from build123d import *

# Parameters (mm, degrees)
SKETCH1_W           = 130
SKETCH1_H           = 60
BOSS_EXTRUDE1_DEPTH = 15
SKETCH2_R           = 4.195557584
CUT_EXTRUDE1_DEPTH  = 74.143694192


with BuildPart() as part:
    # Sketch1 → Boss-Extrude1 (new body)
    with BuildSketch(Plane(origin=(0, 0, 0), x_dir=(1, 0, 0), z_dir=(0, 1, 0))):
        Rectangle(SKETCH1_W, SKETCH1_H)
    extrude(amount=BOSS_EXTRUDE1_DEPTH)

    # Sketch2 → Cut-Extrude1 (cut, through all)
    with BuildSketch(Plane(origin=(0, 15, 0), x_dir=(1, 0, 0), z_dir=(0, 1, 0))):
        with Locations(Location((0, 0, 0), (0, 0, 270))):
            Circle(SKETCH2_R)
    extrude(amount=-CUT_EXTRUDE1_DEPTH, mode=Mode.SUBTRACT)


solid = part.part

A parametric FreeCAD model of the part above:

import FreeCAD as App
import Part
import Sketcher
from FreeCAD import Vector
Q = App.Units.Quantity

doc = App.newDocument("Part")
params = doc.addObject("Spreadsheet::Sheet", "Params")
for row, (alias, value) in enumerate([
    ("sketch1_width", "130 mm"),
    ("sketch1_height", "60 mm"),
    ("pad1_length", "15 mm"),
], start=1):
    params.set(f"A{row}", alias)
    params.set(f"B{row}", "=" + value)
    params.setAlias(f"B{row}", alias)

body = doc.addObject("PartDesign::Body", "Body")

# Sketch on XZ plane
sketch1 = body.newObject("Sketcher::SketchObject", "Sketch")
sketch1.AttachmentSupport = (doc.getObject("XZ_Plane"), [""])
sketch1.MapMode = "FlatFace"
sketch1.addGeometry([
    Part.LineSegment(Vector(-65, -30, 0), Vector(-65, 30, 0)),
    Part.LineSegment(Vector(-65, 30, 0), Vector(65, 30, 0)),
    Part.LineSegment(Vector(65, 30, 0), Vector(65, -30, 0)),
    Part.LineSegment(Vector(65, -30, 0), Vector(-65, -30, 0)),
], False)
sketch1.addConstraint([
    Sketcher.Constraint("Coincident", 0, 2, 1, 1),
    Sketcher.Constraint("Coincident", 1, 2, 2, 1),
    Sketcher.Constraint("Coincident", 2, 2, 3, 1),
    Sketcher.Constraint("Coincident", 3, 2, 0, 1),
    Sketcher.Constraint("Vertical", 0),
    Sketcher.Constraint("Horizontal", 1),
    Sketcher.Constraint("Vertical", 2),
    Sketcher.Constraint("Horizontal", 3),
    Sketcher.Constraint("Symmetric", 0, 2, 2, 2, -1, 1),
    Sketcher.Constraint("DistanceX", 1, 1, 1, 2, Q("130 mm")),
    Sketcher.Constraint("DistanceY", 0, 1, 0, 2, Q("60 mm")),
])
sketch1.setExpression("Constraints[9]", "Params.sketch1_width")
sketch1.setExpression("Constraints[10]", "Params.sketch1_height")
pad1 = body.newObject("PartDesign::Pad", "Pad")
pad1.Profile = sketch1
pad1.setExpression("Length", "Params.pad1_length")
pad1.Reversed = True

# Sketch on XZ plane
sketch2 = body.newObject("Sketcher::SketchObject", "Sketch001")
sketch2.AttachmentSupport = (doc.getObject("XZ_Plane"), [""])
sketch2.MapMode = "FlatFace"
sketch2.AttachmentOffset = App.Placement(Vector(0, 0, -15), App.Rotation())
sketch2.addGeometry(Part.Circle(Vector(0, 0, 0), Vector(0, 0, 1), 4.2), False)
sketch2.addConstraint([
    Sketcher.Constraint("Coincident", 0, 3, -1, 1),
    Sketcher.Constraint("Diameter", 0, Q("8.391115 mm")),
])
pocket1 = body.newObject("PartDesign::Pocket", "Pocket")
pocket1.Profile = sketch2
pocket1.Type = "ThroughAll"
pocket1.Reversed = True

doc.recompute()
